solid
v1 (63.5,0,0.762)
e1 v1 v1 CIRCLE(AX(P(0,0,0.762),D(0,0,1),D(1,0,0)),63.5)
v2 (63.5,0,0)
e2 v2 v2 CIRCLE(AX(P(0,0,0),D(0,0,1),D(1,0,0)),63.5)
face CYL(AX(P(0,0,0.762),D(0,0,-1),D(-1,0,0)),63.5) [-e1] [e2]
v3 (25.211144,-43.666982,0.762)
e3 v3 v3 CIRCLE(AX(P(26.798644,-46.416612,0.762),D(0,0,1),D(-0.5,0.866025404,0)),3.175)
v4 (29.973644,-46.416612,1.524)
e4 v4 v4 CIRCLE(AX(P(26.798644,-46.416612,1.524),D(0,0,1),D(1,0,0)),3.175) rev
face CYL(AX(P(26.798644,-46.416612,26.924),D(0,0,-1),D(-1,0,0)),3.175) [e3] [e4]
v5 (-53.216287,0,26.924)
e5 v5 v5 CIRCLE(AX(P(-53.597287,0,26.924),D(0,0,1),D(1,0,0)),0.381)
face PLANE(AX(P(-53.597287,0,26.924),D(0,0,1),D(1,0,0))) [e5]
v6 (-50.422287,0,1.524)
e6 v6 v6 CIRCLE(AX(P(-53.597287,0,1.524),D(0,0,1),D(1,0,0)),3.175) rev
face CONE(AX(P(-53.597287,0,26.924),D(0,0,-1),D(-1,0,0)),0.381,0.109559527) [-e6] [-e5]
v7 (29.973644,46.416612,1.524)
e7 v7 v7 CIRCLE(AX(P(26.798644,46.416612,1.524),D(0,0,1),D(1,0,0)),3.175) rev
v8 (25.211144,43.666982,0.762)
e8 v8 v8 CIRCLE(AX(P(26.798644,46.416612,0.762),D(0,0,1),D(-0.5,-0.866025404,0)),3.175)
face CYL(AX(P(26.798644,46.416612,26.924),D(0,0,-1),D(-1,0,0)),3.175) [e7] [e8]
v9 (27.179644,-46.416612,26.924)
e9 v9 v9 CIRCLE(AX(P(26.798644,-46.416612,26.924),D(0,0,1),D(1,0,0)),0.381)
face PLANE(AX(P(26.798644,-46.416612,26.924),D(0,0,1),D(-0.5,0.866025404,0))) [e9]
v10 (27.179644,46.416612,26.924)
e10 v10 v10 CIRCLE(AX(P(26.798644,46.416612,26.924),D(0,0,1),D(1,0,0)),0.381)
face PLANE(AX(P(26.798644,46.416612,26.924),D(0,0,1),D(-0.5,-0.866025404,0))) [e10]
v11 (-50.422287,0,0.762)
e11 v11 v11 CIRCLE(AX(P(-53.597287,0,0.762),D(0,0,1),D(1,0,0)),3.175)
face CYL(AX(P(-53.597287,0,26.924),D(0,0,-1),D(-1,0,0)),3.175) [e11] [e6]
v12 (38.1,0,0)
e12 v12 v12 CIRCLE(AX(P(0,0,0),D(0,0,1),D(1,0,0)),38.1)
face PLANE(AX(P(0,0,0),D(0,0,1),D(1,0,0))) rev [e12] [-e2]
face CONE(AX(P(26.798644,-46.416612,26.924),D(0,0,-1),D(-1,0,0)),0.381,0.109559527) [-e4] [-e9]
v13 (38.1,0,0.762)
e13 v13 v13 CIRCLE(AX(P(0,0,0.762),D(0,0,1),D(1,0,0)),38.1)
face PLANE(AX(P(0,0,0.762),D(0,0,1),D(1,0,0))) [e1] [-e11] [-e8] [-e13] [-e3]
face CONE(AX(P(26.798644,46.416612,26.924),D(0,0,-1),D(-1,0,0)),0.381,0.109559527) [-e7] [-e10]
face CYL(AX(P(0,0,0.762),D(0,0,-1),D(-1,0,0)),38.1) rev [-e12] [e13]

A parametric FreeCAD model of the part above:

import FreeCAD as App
import Part
import Sketcher
Q = App.Units.Quantity


def edges_at(feature, points):
    """Names of the edges that pass closest to the given points."""
    edges = feature.Shape.Edges
    near = lambda p: min(range(len(edges)), key=lambda i: edges[i].distToShape(Part.Vertex(*p))[0])
    return sorted({f"Edge{near(p) + 1}" for p in points})

doc = App.newDocument("Part")
body = doc.addObject("PartDesign::Body", "Body")

# Sketch on XY plane
sketch1 = body.newObject("Sketcher::SketchObject", "Sketch")
sketch1.AttachmentSupport = (doc.getObject("XY_Plane"), [""])
sketch1.MapMode = "FlatFace"
sketch1.addGeometry(Part.Circle(App.Vector(0, 0, 0), App.Vector(0, 0, 1), 64), False)
sketch1.addGeometry(Part.Circle(App.Vector(0, 0, 0), App.Vector(0, 0, 1), 38), False)
sketch1.addConstraint(Sketcher.Constraint("Coincident", 0, 3, -1, 1))
sketch1.addConstraint(Sketcher.Constraint("Coincident", 1, 3, -1, 1))
sketch1.addConstraint(Sketcher.Constraint("Diameter", 0, Q("5 in")))
sketch1.addConstraint(Sketcher.Constraint("Diameter", 1, Q("3 in")))
pad1 = body.newObject("PartDesign::Pad", "Pad")
pad1.Profile = sketch1
pad1.Length = Q("0.03 in")

# Sketch on XY plane
sketch2 = body.newObject("Sketcher::SketchObject", "Sketch001")
sketch2.AttachmentSupport = (doc.getObject("XY_Plane"), [""])
sketch2.MapMode = "FlatFace"
sketch2.AttachmentOffset = App.Placement(App.Vector(0, 0, 0.03 * 25.4), App.Rotation())
sketch2.addGeometry(Part.Circle(App.Vector(-53.6, 0, 0), App.Vector(0, 0, 1), 3.2), False)
sketch2.addConstraint(Sketcher.Constraint("PointOnObject", 0, 3, -1))
sketch2.addConstraint(Sketcher.Constraint("Diameter", 0, Q("0.25 in")))
sketch2.addConstraint(Sketcher.Constraint("DistanceX", 0, 3, -1, 1, Q("53.597287 mm")))
pad2 = body.newObject("PartDesign::Pad", "Pad001")
pad2.Profile = sketch2
pad2.Length = Q("1.03 in")
doc.recompute()

chamfer = body.newObject("PartDesign::Chamfer", "Chamfer")
chamfer.Base = (pad2, edges_at(pad2, [(-56.772, 0, 26.924)]))
chamfer.ChamferType = "Two distances"
chamfer.Size = Q("1 in")
chamfer.Size2 = Q("0.11 in")
doc.recompute()

polarpattern = body.newObject("PartDesign::PolarPattern", "PolarPattern")
polarpattern.Originals = [pad2]
polarpattern.Axis = (doc.getObject("Z_Axis"), [""])
polarpattern.Angle = 360
polarpattern.Occurrences = 3
body.Tip = polarpattern
doc.recompute()

chamfer2 = body.newObject("PartDesign::Chamfer", "Chamfer001")
chamfer2.Base = (polarpattern, edges_at(polarpattern, [(28.386, -49.166, 26.924), (28.386, 49.166, 26.924)]))
chamfer2.ChamferType = "Two distances"
chamfer2.Size = Q("1 in")
chamfer2.Size2 = Q("0.11 in")

doc.recompute()
